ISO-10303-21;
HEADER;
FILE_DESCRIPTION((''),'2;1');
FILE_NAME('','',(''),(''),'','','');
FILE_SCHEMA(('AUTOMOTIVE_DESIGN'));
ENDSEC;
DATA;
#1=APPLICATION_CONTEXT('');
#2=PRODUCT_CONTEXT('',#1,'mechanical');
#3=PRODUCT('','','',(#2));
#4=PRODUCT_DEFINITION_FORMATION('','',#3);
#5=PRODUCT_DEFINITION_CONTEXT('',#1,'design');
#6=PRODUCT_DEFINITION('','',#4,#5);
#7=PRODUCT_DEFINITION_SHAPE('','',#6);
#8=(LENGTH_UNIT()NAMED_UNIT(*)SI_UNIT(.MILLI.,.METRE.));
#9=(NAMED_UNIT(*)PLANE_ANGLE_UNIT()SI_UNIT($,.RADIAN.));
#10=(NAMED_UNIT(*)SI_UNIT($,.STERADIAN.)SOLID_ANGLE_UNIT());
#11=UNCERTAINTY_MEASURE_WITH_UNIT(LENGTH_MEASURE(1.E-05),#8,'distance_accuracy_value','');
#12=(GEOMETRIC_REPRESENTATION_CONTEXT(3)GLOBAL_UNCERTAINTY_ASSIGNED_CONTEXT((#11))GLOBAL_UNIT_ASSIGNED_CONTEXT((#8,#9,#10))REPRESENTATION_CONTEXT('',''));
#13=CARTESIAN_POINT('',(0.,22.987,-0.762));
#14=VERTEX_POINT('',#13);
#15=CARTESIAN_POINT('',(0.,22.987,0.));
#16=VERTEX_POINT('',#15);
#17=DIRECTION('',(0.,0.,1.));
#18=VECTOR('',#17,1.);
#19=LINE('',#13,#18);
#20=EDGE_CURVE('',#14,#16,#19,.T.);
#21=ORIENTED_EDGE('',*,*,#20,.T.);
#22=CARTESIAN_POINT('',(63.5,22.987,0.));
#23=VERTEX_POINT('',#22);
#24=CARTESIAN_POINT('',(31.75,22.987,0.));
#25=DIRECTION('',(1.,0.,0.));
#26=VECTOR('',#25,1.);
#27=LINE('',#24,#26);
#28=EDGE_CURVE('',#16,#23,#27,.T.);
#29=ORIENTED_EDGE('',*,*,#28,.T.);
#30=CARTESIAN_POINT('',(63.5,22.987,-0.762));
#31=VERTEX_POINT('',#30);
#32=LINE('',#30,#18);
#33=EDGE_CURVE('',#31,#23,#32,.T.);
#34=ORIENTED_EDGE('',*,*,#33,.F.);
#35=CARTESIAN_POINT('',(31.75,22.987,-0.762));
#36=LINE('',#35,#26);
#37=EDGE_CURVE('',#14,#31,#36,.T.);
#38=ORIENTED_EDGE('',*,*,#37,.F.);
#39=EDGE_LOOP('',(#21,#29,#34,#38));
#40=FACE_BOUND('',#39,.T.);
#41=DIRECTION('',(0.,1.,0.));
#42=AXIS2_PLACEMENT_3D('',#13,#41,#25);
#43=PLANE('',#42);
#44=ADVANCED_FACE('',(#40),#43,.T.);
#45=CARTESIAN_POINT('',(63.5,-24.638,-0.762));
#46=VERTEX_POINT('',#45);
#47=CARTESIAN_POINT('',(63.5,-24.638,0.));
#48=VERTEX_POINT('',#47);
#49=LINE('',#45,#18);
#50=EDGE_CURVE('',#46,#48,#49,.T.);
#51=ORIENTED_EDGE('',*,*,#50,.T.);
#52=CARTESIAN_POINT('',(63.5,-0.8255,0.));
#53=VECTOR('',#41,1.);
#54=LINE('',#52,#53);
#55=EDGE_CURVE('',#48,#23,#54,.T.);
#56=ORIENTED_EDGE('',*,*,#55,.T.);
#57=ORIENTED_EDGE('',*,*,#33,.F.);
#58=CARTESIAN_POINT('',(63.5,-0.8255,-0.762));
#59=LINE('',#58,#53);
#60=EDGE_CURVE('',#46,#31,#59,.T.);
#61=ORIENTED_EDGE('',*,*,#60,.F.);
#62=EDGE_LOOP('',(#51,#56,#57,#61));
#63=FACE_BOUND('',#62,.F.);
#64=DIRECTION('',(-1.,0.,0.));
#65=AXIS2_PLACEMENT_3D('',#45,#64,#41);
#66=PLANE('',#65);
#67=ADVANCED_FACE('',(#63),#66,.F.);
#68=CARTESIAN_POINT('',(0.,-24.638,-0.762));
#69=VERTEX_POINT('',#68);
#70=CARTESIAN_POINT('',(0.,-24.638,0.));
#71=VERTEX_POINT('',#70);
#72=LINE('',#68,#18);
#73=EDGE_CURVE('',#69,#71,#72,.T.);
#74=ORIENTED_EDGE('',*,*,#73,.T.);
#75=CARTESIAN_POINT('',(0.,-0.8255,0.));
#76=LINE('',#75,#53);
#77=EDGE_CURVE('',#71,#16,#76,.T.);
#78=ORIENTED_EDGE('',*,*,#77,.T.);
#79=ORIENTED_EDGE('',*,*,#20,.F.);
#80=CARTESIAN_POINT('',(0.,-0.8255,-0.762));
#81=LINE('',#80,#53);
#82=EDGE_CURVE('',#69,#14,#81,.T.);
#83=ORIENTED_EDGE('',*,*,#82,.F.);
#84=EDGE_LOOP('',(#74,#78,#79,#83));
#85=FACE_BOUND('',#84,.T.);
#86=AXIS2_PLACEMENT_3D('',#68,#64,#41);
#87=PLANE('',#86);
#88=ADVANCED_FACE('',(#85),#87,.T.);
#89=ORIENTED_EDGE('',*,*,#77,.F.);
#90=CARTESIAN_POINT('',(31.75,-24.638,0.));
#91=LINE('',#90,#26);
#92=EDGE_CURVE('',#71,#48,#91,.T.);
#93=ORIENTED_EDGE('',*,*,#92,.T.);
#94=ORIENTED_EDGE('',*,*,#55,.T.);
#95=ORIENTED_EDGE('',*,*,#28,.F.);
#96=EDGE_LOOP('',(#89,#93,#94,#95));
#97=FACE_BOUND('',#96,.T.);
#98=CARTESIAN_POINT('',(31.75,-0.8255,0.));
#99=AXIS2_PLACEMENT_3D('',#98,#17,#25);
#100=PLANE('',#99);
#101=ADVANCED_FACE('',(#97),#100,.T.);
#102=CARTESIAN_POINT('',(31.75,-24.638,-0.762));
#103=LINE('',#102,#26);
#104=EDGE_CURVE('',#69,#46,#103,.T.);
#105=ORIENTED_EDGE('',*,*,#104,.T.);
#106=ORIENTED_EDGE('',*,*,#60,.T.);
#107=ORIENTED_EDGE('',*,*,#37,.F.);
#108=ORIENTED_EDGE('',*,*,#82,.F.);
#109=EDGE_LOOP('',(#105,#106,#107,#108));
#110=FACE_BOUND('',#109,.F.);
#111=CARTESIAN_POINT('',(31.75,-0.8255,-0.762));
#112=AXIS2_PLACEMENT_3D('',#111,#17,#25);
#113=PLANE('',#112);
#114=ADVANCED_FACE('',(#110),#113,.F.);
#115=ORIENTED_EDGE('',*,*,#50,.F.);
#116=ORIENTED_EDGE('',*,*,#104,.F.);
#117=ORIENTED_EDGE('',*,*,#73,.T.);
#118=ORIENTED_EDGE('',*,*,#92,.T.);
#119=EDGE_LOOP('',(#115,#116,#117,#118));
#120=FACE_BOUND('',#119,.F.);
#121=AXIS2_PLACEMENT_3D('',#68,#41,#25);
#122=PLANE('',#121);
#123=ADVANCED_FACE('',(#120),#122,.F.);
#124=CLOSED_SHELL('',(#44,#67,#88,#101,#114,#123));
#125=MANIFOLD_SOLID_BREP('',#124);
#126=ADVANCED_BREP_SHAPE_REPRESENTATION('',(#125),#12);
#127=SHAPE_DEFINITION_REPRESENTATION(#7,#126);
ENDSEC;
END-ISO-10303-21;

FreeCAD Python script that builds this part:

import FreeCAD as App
import Part
import Sketcher
Q = App.Units.Quantity

doc = App.newDocument("Part")
params = doc.addObject("Spreadsheet::Sheet", "Params")
for row, (alias, value) in enumerate([
    ("sketch1_width", "2.5 in"),
    ("sketch1_height", "1.875 in"),
    ("pad1_length", "0.03 in"),
], start=1):
    params.set(f"A{row}", alias)
    params.set(f"B{row}", "=" + value)
    params.setAlias(f"B{row}", alias)

body = doc.addObject("PartDesign::Body", "Body")

# Sketch on XY plane
sketch1 = doc.addObject("Sketcher::SketchObject", "Sketch")
body.addObject(sketch1)
sketch1.AttachmentSupport = (doc.XY_Plane, [""])
sketch1.MapMode = "FlatFace"
sketch1.addGeometry(Part.LineSegment(App.Vector(7, 28, 0), App.Vector(7, -20, 0)), False)
sketch1.addGeometry(Part.LineSegment(App.Vector(7, -20, 0), App.Vector(70, -20, 0)), False)
sketch1.addGeometry(Part.LineSegment(App.Vector(70, -20, 0), App.Vector(70, 28, 0)), False)
sketch1.addGeometry(Part.LineSegment(App.Vector(70, 28, 0), App.Vector(7, 28, 0)), False)
sketch1.addConstraint(Sketcher.Constraint("Coincident", 0, 2, 1, 1))
sketch1.addConstraint(Sketcher.Constraint("Coincident", 1, 2, 2, 1))
sketch1.addConstraint(Sketcher.Constraint("Coincident", 2, 2, 3, 1))
sketch1.addConstraint(Sketcher.Constraint("Coincident", 3, 2, 0, 1))
sketch1.addConstraint(Sketcher.Constraint("Vertical", 0))
sketch1.addConstraint(Sketcher.Constraint("Horizontal", 1))
sketch1.addConstraint(Sketcher.Constraint("Vertical", 2))
sketch1.addConstraint(Sketcher.Constraint("Horizontal", 3))
sketch1.addConstraint(Sketcher.Constraint("DistanceX", 1, 1, 1, 2, Q("2.5 in")))
sketch1.addConstraint(Sketcher.Constraint("DistanceY", 0, 2, 0, 1, Q("1.875 in")))
sketch1.addConstraint(Sketcher.Constraint("DistanceY", 0, 2, -1, 1, 19.919502))
sketch1.addConstraint(Sketcher.Constraint("DistanceX", -1, 1, 0, 2, 6.821634))
sketch1.setExpression("Constraints[8]", "Params.sketch1_width")
sketch1.setExpression("Constraints[9]", "Params.sketch1_height")
pad1 = doc.addObject("PartDesign::Pad", "Pad")
body.addObject(pad1)
pad1.Profile = sketch1
pad1.setExpression("Length", "Params.pad1_length")
body2 = doc.addObject("PartDesign::Body", "Body001")
doc.recompute()

body.Placement = App.Placement(App.Vector(-6.821634, 19.919502, -0.762), App.Rotation(App.Vector(0, 0, 1), 0))
boolean = doc.addObject("PartDesign::Boolean", "Boolean")
body2.addObject(boolean)
boolean.Type = "Fuse"
boolean.addObjects([body])
body3 = doc.addObject("PartDesign::Body", "Body002")
doc.recompute()

body2.Placement = App.Placement(App.Vector(0, -24.638, 0), App.Rotation(App.Vector(0, 0, 1), 0))
boolean2 = doc.addObject("PartDesign::Boolean", "Boolean001")
body3.addObject(boolean2)
boolean2.Type = "Fuse"
boolean2.addObjects([body2])

doc.recompute()
